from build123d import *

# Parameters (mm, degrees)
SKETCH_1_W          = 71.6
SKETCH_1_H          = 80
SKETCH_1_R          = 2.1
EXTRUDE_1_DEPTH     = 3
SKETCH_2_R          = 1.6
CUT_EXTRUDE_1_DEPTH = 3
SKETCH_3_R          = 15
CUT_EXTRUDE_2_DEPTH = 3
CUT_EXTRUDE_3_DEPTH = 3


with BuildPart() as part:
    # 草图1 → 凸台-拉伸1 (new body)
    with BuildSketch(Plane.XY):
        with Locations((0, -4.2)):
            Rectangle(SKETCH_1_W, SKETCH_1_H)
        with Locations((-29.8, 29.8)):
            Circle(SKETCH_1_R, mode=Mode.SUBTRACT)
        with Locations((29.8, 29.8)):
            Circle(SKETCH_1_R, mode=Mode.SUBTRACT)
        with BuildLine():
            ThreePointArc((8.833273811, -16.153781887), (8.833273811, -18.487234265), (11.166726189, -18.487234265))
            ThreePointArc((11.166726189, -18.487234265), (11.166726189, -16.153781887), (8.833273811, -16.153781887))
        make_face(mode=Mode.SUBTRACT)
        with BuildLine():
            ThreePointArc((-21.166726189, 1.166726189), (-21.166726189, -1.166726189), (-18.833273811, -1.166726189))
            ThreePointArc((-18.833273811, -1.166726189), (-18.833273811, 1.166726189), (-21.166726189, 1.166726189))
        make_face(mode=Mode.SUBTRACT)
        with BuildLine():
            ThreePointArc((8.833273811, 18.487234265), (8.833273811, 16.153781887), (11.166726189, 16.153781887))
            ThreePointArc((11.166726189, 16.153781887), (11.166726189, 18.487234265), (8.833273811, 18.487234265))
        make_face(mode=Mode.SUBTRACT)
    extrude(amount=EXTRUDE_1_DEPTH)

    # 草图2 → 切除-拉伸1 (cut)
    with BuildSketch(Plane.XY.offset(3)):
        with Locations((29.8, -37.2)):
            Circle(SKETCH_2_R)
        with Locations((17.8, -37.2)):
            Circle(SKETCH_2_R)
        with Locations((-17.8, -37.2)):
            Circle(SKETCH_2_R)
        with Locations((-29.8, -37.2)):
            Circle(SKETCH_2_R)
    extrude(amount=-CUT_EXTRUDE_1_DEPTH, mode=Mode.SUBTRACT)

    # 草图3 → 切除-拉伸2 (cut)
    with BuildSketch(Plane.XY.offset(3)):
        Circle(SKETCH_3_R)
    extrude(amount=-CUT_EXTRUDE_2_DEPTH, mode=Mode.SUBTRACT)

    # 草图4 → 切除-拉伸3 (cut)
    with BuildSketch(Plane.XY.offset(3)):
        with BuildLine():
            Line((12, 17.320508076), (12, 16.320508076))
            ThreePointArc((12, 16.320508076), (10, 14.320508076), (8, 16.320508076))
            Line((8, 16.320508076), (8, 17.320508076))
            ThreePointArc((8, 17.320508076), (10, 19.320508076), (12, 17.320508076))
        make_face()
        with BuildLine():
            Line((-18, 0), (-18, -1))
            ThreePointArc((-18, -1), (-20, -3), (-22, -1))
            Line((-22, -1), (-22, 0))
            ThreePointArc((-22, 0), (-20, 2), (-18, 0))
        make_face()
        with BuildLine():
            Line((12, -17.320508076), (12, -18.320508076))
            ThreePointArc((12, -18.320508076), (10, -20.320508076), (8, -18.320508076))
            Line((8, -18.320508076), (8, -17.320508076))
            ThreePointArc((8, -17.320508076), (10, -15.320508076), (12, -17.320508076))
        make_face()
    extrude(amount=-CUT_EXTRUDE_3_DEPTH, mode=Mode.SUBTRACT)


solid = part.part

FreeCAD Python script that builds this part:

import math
import FreeCAD as App
import Part
import Sketcher
from FreeCAD import Vector
Q = App.Units.Quantity


def add_polygon(sketch, points):
    """Adds a closed chain of lines whose ends are joined by coincident constraints."""
    first, n = sketch.GeometryCount, len(points)
    for a, b in zip(points, points[1:] + points[:1]):
        sketch.addGeometry(Part.LineSegment(App.Vector(*a, 0), App.Vector(*b, 0)), False)
    for i in range(n):
        sketch.addConstraint(Sketcher.Constraint("Coincident", first + i, 2, first + (i + 1) % n, 1))

doc = App.newDocument("Part")
body = doc.addObject("PartDesign::Body", "Body")

# Sketch on XY plane
sketch1 = body.newObject("Sketcher::SketchObject", "Sketch")
sketch1.AttachmentSupport = (doc.getObject("XY_Plane"), [""])
sketch1.MapMode = "FlatFace"
add_polygon(sketch1, [(-35.8, 35.8), (-35.8, -44.2), (35.8, -44.2), (35.8, 35.8)])  # lines 0-3
sketch1.addGeometry(Part.Circle(Vector(-20, 0, 0), Vector(0, 0, 1), 1.6), False)  # 4
sketch1.addGeometry(Part.Circle(Vector(10, -17.3, 0), Vector(0, 0, 1), 1.6), False)  # 5
sketch1.addGeometry(Part.Circle(Vector(-29.8, 29.8, 0), Vector(0, 0, 1), 2.1), False)  # 6
sketch1.addGeometry(Part.Circle(Vector(10, 17.3, 0), Vector(0, 0, 1), 1.6), False)  # 7
sketch1.addGeometry(Part.Circle(Vector(29.8, 29.8, 0), Vector(0, 0, 1), 2.1), False)  # 8
sketch1.addConstraint(Sketcher.Constraint("Vertical", 0))
sketch1.addConstraint(Sketcher.Constraint("Horizontal", 1))
sketch1.addConstraint(Sketcher.Constraint("Vertical", 2))
sketch1.addConstraint(Sketcher.Constraint("Horizontal", 3))
sketch1.addConstraint(Sketcher.Constraint("Equal", 4, 5))
sketch1.addConstraint(Sketcher.Constraint("Equal", 5, 7))
sketch1.addConstraint(Sketcher.Constraint("Equal", 6, 8))
sketch1.addConstraint(Sketcher.Constraint("Symmetric", 6, 3, 8, 3, -2))
sketch1.addConstraint(Sketcher.Constraint("Symmetric", 5, 3, 7, 3, -1))
sketch1.addConstraint(Sketcher.Constraint("PointOnObject", 4, 3, -1))
sketch1.addConstraint(Sketcher.Constraint("Diameter", 4, Q("3.3 mm")))
sketch1.addConstraint(Sketcher.Constraint("Diameter", 6, Q("4.2 mm")))
sketch1.addConstraint(Sketcher.Constraint("DistanceY", 0, 2, 0, 1, Q("80 mm")))
sketch1.addConstraint(Sketcher.Constraint("DistanceX", 1, 1, 1, 2, Q("71.6 mm")))
sketch1.addConstraint(Sketcher.Constraint("DistanceX", 4, 3, -1, 1, Q("20 mm")))
sketch1.addConstraint(Sketcher.Constraint("DistanceX", -1, 1, 5, 3, Q("10 mm")))
sketch1.addConstraint(Sketcher.Constraint("DistanceX", 0, 2, 6, 3, Q("6 mm")))
sketch1.addConstraint(Sketcher.Constraint("DistanceY", 0, 2, 6, 3, Q("74 mm")))
sketch1.addConstraint(Sketcher.Constraint("DistanceX", 8, 3, 1, 2, Q("6 mm")))
sketch1.addConstraint(Sketcher.Constraint("DistanceY", -1, 1, 6, 3, Q("29.8 mm")))
sketch1.addConstraint(Sketcher.Constraint("DistanceY", 5, 3, -1, 1, Q("17.320508 mm")))
pad1 = body.newObject("PartDesign::Pad", "Pad")
pad1.Profile = sketch1
pad1.Length = 3

# Sketch on XY plane
sketch2 = body.newObject("Sketcher::SketchObject", "Sketch001")
sketch2.AttachmentSupport = (doc.getObject("XY_Plane"), [""])
sketch2.MapMode = "FlatFace"
sketch2.AttachmentOffset = App.Placement(Vector(0, 0, 3), App.Rotation())
sketch2.addGeometry(Part.Circle(Vector(29.8, -37.2, 0), Vector(0, 0, 1), 1.6), False)
sketch2.addGeometry(Part.Circle(Vector(17.8, -37.2, 0), Vector(0, 0, 1), 1.6), False)
sketch2.addGeometry(Part.Circle(Vector(-17.8, -37.2, 0), Vector(0, 0, 1), 1.6), False)
sketch2.addGeometry(Part.Circle(Vector(-29.8, -37.2, 0), Vector(0, 0, 1), 1.6), False)
sketch2.addConstraint(Sketcher.Constraint("Equal", 0, 1))
sketch2.addConstraint(Sketcher.Constraint("Equal", 1, 2))
sketch2.addConstraint(Sketcher.Constraint("Equal", 2, 3))
sketch2.addConstraint(Sketcher.Constraint("Symmetric", 1, 3, 2, 3, -2))
sketch2.addConstraint(Sketcher.Constraint("Symmetric", 0, 3, 3, 3, -2))
sketch2.addConstraint(Sketcher.Constraint("Horizontal", 0, 3, 1, 3))
sketch2.addConstraint(Sketcher.Constraint("Diameter", 0, Q("3.2 mm")))
sketch2.addConstraint(Sketcher.Constraint("DistanceX", 1, 3, 0, 3, Q("12 mm")))
sketch2.addConstraint(Sketcher.Constraint("DistanceX", -1, 1, 0, 3, Q("29.8 mm")))
sketch2.addConstraint(Sketcher.Constraint("DistanceY", 0, 3, -1, 1, Q("37.2 mm")))
pocket1 = body.newObject("PartDesign::Pocket", "Pocket")
pocket1.Profile = sketch2
pocket1.Length = 3

# Sketch on XY plane
sketch3 = body.newObject("Sketcher::SketchObject", "Sketch002")
sketch3.AttachmentSupport = (doc.getObject("XY_Plane"), [""])
sketch3.MapMode = "FlatFace"
sketch3.AttachmentOffset = App.Placement(Vector(0, 0, 3), App.Rotation())
sketch3.addGeometry(Part.Circle(Vector(0, 0, 0), Vector(0, 0, 1), 15), False)
sketch3.addConstraint(Sketcher.Constraint("Coincident", 0, 3, -1, 1))
sketch3.addConstraint(Sketcher.Constraint("Diameter", 0, Q("30 mm")))
pocket2 = body.newObject("PartDesign::Pocket", "Pocket001")
pocket2.Profile = sketch3
pocket2.Length = 3

# Sketch on XY plane
sketch4 = body.newObject("Sketcher::SketchObject", "Sketch003")
sketch4.AttachmentSupport = (doc.getObject("XY_Plane"), [""])
sketch4.MapMode = "FlatFace"
sketch4.AttachmentOffset = App.Placement(Vector(0, 0, 3), App.Rotation())
sketch4.addGeometry(Part.LineSegment(Vector(12, 16.3, 0), Vector(12, 17.3, 0)), False)
sketch4.addGeometry(Part.ArcOfCircle(Part.Circle(Vector(10, 17.3, 0), Vector(0, 0, 1), 2), math.radians(0), math.radians(180)), False)
sketch4.addGeometry(Part.LineSegment(Vector(8, 17.3, 0), Vector(8, 16.3, 0)), False)
sketch4.addGeometry(Part.ArcOfCircle(Part.Circle(Vector(10, 16.3, 0), Vector(0, 0, 1), 2), math.radians(180), math.radians(360)), False)
sketch4.addGeometry(Part.LineSegment(Vector(-18, -1, 0), Vector(-18, 0, 0)), False)
sketch4.addGeometry(Part.ArcOfCircle(Part.Circle(Vector(-20, 0, 0), Vector(0, 0, 1), 2), math.radians(0), math.radians(180)), False)
sketch4.addGeometry(Part.LineSegment(Vector(-22, 0, 0), Vector(-22, -1, 0)), False)
sketch4.addGeometry(Part.ArcOfCircle(Part.Circle(Vector(-20, -1, 0), Vector(0, 0, 1), 2), math.radians(180), math.radians(360)), False)
sketch4.addGeometry(Part.LineSegment(Vector(12, -18.3, 0), Vector(12, -17.3, 0)), False)
sketch4.addGeometry(Part.ArcOfCircle(Part.Circle(Vector(10, -17.3, 0), Vector(0, 0, 1), 2), math.radians(0), math.radians(180)), False)
sketch4.addGeometry(Part.LineSegment(Vector(8, -17.3, 0), Vector(8, -18.3, 0)), False)
sketch4.addGeometry(Part.ArcOfCircle(Part.Circle(Vector(10, -18.3, 0), Vector(0, 0, 1), 2), math.radians(180), math.radians(360)), False)
sketch4.addConstraint(Sketcher.Constraint("Tangent", 0, 2, 1, 1))
sketch4.addConstraint(Sketcher.Constraint("Tangent", 1, 2, 2, 1))
sketch4.addConstraint(Sketcher.Constraint("Tangent", 2, 2, 3, 1))
sketch4.addConstraint(Sketcher.Constraint("Tangent", 3, 2, 0, 1))
sketch4.addConstraint(Sketcher.Constraint("Tangent", 4, 2, 5, 1))
sketch4.addConstraint(Sketcher.Constraint("Tangent", 5, 2, 6, 1))
sketch4.addConstraint(Sketcher.Constraint("Tangent", 6, 2, 7, 1))
sketch4.addConstraint(Sketcher.Constraint("Tangent", 7, 2, 4, 1))
sketch4.addConstraint(Sketcher.Constraint("Tangent", 8, 2, 9, 1))
sketch4.addConstraint(Sketcher.Constraint("Tangent", 9, 2, 10, 1))
sketch4.addConstraint(Sketcher.Constraint("Tangent", 10, 2, 11, 1))
sketch4.addConstraint(Sketcher.Constraint("Tangent", 11, 2, 8, 1))
sketch4.addConstraint(Sketcher.Constraint("Vertical", 0))
sketch4.addConstraint(Sketcher.Constraint("Vertical", 2))
sketch4.addConstraint(Sketcher.Constraint("Vertical", 4))
sketch4.addConstraint(Sketcher.Constraint("Vertical", 6))
sketch4.addConstraint(Sketcher.Constraint("Vertical", 8))
sketch4.addConstraint(Sketcher.Constraint("Vertical", 10))
sketch4.addConstraint(Sketcher.Constraint("Equal", 3, 5))
sketch4.addConstraint(Sketcher.Constraint("Equal", 7, 9))
sketch4.addConstraint(Sketcher.Constraint("Symmetric", 1, 3, 9, 3, -1))
sketch4.addConstraint(Sketcher.Constraint("PointOnObject", 5, 3, -1))
sketch4.addConstraint(Sketcher.Constraint("Equal", 2, 4))
sketch4.addConstraint(Sketcher.Constraint("Equal", 6, 8))
sketch4.addConstraint(Sketcher.Constraint("Radius", 1, Q("2 mm")))
sketch4.addConstraint(Sketcher.Constraint("DistanceY", 0, 1, 0, 2, Q("1 mm")))
sketch4.addConstraint(Sketcher.Constraint("DistanceX", -1, 1, 1, 3, Q("10 mm")))
sketch4.addConstraint(Sketcher.Constraint("DistanceX", 5, 3, -1, 1, Q("20 mm")))
sketch4.addConstraint(Sketcher.Constraint("DistanceY", -1, 1, 1, 3, Q("17.320508 mm")))
pocket3 = body.newObject("PartDesign::Pocket", "Pocket002")
pocket3.Profile = sketch4
pocket3.Length = 3

doc.recompute()
